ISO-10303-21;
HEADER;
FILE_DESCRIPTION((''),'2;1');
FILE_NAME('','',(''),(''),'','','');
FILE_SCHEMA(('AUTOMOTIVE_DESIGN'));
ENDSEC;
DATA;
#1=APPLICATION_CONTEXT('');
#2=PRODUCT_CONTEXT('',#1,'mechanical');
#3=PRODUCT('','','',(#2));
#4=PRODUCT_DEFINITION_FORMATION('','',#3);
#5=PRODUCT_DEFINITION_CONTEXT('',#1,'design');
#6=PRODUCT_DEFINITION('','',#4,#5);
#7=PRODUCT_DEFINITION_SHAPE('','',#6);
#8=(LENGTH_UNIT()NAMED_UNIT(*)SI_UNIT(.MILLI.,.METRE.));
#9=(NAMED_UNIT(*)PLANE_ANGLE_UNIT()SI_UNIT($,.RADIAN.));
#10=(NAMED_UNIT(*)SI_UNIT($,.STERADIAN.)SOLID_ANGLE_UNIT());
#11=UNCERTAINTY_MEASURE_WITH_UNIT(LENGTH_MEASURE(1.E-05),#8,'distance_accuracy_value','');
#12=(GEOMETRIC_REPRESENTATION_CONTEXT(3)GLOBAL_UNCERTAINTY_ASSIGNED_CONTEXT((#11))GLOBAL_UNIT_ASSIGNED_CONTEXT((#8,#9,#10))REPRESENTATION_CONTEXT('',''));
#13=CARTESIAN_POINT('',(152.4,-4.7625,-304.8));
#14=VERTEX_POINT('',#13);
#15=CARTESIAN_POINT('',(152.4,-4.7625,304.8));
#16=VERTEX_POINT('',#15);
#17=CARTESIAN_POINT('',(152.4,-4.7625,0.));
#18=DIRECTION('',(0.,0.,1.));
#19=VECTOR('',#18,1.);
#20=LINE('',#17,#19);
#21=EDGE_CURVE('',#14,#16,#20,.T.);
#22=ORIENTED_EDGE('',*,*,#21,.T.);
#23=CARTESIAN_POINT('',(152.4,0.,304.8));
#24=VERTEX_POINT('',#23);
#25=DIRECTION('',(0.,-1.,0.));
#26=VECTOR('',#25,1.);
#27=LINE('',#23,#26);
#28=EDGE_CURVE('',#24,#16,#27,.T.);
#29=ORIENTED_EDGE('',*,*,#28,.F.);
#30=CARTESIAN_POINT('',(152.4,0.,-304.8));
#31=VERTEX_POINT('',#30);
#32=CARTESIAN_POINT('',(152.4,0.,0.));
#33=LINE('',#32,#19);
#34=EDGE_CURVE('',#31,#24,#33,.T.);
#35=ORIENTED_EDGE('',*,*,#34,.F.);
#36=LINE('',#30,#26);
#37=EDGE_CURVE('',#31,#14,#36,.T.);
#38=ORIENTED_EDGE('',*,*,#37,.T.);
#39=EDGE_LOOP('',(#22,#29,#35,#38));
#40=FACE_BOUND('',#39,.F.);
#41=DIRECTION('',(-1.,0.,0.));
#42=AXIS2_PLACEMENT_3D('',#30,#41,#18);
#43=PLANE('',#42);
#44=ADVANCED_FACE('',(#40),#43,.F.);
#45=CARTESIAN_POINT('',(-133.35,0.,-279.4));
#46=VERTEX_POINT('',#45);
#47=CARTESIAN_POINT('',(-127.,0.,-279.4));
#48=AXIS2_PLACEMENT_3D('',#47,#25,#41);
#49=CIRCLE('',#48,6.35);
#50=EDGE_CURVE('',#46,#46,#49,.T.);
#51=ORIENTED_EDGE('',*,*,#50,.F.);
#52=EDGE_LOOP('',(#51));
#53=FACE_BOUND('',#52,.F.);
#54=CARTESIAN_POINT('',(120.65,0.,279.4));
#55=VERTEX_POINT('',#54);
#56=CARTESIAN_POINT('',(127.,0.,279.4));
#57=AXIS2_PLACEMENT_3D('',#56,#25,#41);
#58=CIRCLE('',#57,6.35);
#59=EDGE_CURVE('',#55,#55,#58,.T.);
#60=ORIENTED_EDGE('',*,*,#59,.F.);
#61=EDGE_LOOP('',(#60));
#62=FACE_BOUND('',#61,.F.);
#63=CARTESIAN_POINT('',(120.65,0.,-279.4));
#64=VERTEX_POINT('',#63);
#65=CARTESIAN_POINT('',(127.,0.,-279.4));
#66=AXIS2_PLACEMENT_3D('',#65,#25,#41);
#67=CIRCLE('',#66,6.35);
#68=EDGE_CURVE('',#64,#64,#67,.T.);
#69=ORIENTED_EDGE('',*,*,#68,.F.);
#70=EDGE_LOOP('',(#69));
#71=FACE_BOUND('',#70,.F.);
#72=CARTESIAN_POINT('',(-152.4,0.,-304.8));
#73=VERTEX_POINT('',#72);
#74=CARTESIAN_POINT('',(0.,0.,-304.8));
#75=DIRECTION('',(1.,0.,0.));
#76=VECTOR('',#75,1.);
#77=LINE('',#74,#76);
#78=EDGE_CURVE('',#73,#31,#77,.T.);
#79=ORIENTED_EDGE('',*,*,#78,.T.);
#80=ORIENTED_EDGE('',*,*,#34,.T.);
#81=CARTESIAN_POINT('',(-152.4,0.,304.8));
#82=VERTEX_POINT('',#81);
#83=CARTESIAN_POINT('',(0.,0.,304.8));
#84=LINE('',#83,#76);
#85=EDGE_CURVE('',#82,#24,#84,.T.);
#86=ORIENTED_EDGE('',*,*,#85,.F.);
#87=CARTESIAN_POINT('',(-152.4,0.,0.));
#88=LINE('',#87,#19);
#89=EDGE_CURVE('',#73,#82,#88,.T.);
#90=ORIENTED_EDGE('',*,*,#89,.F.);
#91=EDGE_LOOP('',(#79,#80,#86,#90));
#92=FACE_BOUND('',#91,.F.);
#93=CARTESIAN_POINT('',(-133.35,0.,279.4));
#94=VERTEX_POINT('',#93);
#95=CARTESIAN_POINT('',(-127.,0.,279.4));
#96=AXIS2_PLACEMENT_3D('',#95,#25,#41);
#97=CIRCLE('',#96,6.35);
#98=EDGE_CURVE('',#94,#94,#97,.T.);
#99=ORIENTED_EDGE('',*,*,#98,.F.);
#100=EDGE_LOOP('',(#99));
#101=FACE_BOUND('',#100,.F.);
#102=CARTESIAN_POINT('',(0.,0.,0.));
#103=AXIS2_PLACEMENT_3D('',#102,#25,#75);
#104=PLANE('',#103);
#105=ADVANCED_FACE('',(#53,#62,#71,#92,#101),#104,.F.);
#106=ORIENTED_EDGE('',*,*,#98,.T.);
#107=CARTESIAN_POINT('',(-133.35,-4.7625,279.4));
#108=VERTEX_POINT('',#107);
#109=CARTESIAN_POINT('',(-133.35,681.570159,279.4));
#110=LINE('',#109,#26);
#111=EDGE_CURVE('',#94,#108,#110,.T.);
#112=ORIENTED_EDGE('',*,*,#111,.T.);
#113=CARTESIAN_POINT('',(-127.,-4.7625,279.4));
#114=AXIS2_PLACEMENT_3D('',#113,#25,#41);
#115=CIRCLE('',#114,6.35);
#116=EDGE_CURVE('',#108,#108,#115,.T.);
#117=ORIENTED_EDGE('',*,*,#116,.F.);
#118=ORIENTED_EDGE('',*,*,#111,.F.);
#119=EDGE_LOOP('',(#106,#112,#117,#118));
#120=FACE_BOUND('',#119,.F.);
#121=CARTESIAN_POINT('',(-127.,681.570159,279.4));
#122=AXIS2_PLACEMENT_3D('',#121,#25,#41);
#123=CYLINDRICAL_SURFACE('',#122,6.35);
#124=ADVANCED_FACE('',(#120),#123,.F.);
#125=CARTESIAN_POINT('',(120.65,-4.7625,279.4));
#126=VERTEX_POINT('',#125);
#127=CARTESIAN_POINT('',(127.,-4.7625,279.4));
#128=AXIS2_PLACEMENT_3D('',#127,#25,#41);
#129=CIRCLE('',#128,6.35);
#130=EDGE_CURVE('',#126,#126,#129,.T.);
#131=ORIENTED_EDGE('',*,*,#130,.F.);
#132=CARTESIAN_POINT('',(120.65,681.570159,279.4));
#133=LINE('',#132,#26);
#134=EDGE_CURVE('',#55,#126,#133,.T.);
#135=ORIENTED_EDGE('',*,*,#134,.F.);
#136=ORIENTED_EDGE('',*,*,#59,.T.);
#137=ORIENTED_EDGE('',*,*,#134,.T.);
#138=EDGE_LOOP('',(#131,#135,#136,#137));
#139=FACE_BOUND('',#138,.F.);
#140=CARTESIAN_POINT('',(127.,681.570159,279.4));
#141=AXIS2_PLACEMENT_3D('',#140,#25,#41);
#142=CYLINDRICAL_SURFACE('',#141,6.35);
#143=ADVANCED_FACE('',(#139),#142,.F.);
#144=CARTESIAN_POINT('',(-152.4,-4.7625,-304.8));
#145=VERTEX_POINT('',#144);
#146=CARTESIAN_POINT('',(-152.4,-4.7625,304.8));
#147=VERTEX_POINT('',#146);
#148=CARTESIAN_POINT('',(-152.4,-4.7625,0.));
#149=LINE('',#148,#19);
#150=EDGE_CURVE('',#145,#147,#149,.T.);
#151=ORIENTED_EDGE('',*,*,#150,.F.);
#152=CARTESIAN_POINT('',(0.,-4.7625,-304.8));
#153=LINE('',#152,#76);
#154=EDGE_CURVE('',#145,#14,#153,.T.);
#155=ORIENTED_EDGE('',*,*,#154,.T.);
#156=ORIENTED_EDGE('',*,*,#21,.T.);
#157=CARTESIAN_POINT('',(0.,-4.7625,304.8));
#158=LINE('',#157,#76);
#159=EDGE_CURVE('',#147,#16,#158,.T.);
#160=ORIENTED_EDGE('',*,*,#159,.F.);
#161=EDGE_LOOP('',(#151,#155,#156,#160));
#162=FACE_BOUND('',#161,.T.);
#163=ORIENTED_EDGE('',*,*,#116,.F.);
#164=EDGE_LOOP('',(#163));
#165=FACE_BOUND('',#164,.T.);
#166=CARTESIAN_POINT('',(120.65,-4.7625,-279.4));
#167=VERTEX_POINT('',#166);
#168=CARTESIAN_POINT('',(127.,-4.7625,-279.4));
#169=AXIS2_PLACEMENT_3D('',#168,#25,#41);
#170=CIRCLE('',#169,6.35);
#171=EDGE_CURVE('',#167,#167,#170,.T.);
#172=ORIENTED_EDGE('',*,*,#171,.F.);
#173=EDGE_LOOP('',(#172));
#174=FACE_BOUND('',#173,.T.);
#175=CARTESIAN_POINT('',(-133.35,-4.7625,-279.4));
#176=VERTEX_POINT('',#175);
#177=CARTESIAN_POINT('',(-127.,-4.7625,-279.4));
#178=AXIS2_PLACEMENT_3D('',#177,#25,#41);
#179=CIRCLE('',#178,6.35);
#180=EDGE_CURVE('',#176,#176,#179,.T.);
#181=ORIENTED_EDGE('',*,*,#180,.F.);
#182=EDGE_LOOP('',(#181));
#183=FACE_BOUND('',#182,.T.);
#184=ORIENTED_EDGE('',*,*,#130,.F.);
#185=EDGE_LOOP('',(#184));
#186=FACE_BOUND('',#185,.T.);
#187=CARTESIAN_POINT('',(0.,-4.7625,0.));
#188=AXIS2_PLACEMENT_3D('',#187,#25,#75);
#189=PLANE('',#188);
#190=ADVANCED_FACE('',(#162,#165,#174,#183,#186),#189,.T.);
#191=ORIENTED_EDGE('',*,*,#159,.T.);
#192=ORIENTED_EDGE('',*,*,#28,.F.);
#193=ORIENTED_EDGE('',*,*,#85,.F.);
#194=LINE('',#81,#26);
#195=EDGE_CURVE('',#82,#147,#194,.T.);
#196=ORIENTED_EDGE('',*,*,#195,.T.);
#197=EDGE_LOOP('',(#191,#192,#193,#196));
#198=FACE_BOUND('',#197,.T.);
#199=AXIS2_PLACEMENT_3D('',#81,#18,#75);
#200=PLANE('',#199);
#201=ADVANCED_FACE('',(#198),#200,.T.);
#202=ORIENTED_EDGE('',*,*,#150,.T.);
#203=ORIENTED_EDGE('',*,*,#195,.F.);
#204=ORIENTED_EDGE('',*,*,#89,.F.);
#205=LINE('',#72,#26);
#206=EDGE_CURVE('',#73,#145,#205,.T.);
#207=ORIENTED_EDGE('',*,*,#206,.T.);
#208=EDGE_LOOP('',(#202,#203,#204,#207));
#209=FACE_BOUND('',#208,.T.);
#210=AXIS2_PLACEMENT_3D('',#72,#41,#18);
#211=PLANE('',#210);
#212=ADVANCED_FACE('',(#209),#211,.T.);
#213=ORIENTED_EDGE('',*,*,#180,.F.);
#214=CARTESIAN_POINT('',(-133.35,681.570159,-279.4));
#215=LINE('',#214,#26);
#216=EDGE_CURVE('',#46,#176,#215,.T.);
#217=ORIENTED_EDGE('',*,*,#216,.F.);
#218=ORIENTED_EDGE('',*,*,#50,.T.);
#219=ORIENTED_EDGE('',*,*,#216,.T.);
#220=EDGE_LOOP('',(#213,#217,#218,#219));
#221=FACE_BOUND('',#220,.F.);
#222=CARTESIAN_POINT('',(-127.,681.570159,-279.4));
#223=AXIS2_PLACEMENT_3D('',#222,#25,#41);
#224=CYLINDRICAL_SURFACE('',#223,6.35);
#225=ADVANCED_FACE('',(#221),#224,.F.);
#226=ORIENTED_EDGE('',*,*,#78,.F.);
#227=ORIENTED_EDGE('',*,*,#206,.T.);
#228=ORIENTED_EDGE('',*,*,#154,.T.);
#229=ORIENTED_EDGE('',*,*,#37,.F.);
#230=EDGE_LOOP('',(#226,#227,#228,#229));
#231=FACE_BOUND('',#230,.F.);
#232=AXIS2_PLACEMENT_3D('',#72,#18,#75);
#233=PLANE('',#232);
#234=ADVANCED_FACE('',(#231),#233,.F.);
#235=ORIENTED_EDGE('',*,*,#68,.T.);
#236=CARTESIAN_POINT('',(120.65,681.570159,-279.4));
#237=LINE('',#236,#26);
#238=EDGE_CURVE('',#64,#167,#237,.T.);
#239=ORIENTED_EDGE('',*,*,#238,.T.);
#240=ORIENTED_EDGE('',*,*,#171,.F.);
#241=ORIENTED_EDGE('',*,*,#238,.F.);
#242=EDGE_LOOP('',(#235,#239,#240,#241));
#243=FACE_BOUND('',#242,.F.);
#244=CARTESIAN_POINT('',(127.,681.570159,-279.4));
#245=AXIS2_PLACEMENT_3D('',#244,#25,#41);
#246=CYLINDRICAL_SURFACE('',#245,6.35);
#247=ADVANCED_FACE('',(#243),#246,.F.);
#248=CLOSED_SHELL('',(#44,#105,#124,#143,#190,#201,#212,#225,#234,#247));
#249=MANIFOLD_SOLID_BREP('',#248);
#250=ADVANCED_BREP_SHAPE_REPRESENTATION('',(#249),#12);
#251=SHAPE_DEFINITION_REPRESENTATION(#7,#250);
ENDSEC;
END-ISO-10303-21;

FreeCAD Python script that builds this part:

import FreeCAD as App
import Part
import Sketcher

V = App.Vector
Q = App.Units.Quantity


def add_polygon(sketch, points):
    """Adds a closed chain of lines whose ends are joined by coincident constraints."""
    first, n = sketch.GeometryCount, len(points)
    for a, b in zip(points, points[1:] + points[:1]):
        sketch.addGeometry(Part.LineSegment(App.Vector(*a, 0), App.Vector(*b, 0)), False)
    for i in range(n):
        sketch.addConstraint(Sketcher.Constraint("Coincident", first + i, 2, first + (i + 1) % n, 1))

doc = App.newDocument("Part")
body = doc.addObject("PartDesign::Body", "Body")

# Sketch on XZ plane
sketch1 = body.newObject("Sketcher::SketchObject", "Sketch")
sketch1.AttachmentSupport = (doc.getObject("XZ_Plane"), [""])
sketch1.MapMode = "FlatFace"
add_polygon(sketch1, [(-152.4, 304.8), (-152.4, -304.8), (152.4, -304.8), (152.4, 304.8)])  # lines 0-3
sketch1.addConstraint([
    Sketcher.Constraint("Vertical", 0),
    Sketcher.Constraint("Horizontal", 1),
    Sketcher.Constraint("Vertical", 2),
    Sketcher.Constraint("Horizontal", 3),
    Sketcher.Constraint("Symmetric", 0, 2, 2, 2, -1, 1),
    Sketcher.Constraint("DistanceX", 1, 1, 1, 2, Q("12 in")),
    Sketcher.Constraint("DistanceY", 0, 2, 0, 1, Q("24 in")),
])
pad1 = body.newObject("PartDesign::Pad", "Pad")
pad1.Profile = sketch1
pad1.Length = Q("0.1875 in")

# Sketch on XZ plane
sketch2 = body.newObject("Sketcher::SketchObject", "Sketch001")
sketch2.AttachmentSupport = (doc.getObject("XZ_Plane"), [""])
sketch2.MapMode = "FlatFace"
sketch2.addGeometry([
    Part.Circle(V(-127, -279.4, 0), V(0, 0, 1), 6.35),
    Part.Circle(V(127, -279.4, 0), V(0, 0, 1), 6.35),
    Part.Circle(V(-127, 279.4, 0), V(0, 0, 1), 6.35),
    Part.Circle(V(127, 279.4, 0), V(0, 0, 1), 6.35),
], False)
sketch2.addConstraint([
    Sketcher.Constraint("Equal", 0, 1),
    Sketcher.Constraint("Equal", 1, 2),
    Sketcher.Constraint("Equal", 2, 3),
    Sketcher.Constraint("Symmetric", 1, 3, 2, 3, -1, 1),
    Sketcher.Constraint("Symmetric", 0, 3, 3, 3, -1, 1),
    Sketcher.Constraint("Symmetric", 0, 3, 1, 3, -2),
    Sketcher.Constraint("Diameter", 0, Q("0.5 in")),
    Sketcher.Constraint("DistanceX", 0, 3, -1, 1, Q("5 in")),
    Sketcher.Constraint("DistanceY", 0, 3, -1, 1, Q("11 in")),
])
doc.recompute()
hole = body.newObject("PartDesign::Hole", "Hole")
hole.Profile = sketch2
hole.ThreadType = "None"
hole.Diameter = Q("0.5 in")
hole.DepthType = "ThroughAll"
hole.Reversed = True

doc.recompute()
